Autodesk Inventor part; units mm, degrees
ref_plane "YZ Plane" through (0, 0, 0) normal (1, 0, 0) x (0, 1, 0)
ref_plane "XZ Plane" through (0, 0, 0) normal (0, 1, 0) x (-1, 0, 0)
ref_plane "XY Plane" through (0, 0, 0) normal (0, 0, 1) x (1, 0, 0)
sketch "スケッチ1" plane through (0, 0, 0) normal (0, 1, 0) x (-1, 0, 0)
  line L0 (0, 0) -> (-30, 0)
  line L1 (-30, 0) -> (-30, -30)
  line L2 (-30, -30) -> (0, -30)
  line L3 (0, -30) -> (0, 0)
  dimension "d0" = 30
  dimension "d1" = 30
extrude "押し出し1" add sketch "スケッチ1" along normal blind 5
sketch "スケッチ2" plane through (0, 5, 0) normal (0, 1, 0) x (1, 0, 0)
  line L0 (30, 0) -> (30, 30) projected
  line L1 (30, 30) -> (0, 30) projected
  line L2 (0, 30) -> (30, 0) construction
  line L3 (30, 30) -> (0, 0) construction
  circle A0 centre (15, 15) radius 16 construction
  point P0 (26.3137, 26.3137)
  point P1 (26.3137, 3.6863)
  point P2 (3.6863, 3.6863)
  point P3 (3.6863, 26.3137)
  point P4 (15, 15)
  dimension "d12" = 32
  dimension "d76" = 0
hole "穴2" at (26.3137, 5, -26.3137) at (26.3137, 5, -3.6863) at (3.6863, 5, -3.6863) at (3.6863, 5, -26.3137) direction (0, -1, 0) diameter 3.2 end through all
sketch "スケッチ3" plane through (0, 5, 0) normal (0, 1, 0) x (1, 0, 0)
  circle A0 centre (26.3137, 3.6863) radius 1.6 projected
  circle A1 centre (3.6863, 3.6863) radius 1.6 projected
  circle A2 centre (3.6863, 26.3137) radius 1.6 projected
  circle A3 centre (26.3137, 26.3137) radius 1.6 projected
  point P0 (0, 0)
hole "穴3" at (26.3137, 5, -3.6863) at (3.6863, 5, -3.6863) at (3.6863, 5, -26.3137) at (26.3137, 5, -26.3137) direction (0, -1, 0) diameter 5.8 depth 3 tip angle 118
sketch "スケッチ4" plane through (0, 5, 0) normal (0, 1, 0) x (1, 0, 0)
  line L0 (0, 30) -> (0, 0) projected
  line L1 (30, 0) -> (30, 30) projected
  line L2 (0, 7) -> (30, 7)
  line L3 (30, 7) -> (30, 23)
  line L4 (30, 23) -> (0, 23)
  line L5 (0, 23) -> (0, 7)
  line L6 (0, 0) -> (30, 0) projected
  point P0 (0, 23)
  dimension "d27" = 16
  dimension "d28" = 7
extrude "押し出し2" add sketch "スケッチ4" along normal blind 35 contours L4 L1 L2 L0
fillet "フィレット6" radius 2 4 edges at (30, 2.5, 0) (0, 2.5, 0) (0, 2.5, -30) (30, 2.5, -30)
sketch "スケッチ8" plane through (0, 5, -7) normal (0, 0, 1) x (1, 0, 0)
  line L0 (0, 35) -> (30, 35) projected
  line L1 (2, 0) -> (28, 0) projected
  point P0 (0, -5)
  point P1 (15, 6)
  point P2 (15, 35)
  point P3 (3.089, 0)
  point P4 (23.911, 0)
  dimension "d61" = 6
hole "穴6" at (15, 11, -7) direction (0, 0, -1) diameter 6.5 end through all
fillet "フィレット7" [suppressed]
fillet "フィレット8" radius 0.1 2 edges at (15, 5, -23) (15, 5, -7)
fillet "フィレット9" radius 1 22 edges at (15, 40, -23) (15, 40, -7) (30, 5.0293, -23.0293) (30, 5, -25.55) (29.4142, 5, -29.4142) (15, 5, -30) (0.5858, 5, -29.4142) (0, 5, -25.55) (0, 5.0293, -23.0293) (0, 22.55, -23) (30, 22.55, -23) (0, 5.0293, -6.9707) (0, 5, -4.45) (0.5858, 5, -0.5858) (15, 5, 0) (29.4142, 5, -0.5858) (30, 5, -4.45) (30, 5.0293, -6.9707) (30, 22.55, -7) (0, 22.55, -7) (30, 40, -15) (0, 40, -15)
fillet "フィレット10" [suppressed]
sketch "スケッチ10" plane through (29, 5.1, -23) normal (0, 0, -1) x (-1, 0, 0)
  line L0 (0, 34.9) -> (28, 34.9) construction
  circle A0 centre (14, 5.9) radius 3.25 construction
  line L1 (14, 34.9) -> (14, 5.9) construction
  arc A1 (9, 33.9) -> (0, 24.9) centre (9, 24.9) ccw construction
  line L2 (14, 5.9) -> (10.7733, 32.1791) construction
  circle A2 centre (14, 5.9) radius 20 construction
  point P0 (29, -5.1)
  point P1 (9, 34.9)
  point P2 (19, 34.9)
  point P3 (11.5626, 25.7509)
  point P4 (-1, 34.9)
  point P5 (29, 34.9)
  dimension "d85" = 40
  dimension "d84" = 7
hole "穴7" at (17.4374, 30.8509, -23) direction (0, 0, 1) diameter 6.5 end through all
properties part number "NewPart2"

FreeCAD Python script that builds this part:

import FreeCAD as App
import Part
import Sketcher


def edges_at(feature, points):
    """Names of the edges that pass closest to the given points."""
    edges = feature.Shape.Edges
    near = lambda p: min(range(len(edges)), key=lambda i: edges[i].distToShape(Part.Vertex(*p))[0])
    return sorted({f"Edge{near(p) + 1}" for p in points})


def add_polygon(sketch, points):
    """Adds a closed chain of lines whose ends are joined by coincident constraints."""
    first, n = sketch.GeometryCount, len(points)
    for a, b in zip(points, points[1:] + points[:1]):
        sketch.addGeometry(Part.LineSegment(App.Vector(*a, 0), App.Vector(*b, 0)), False)
    for i in range(n):
        sketch.addConstraint(Sketcher.Constraint("Coincident", first + i, 2, first + (i + 1) % n, 1))

doc = App.newDocument("Part")
body = doc.addObject("PartDesign::Body", "Body")

sketch1 = body.newObject("Sketcher::SketchObject", "Sketch")
sketch1.AttachmentSupport = (doc.getObject("XZ_Plane"), [""])
sketch1.MapMode = "FlatFace"
add_polygon(sketch1, [(0, -30), (0, 0), (30, 0), (30, -30)])
sketch1.addConstraint([
    Sketcher.Constraint("Vertical", 0),
    Sketcher.Constraint("Horizontal", 1),
    Sketcher.Constraint("Vertical", 2),
    Sketcher.Constraint("Horizontal", 3),
    Sketcher.Constraint("Coincident", 0, 2, -1, 1),
    Sketcher.Constraint("Equal", 3, 0),
    Sketcher.Constraint("DistanceX", 1, 1, 1, 2, 30.0),
])
pad1 = body.newObject("PartDesign::Pad", "Pad")
pad1.Profile = sketch1
pad1.Length = 5
pad1.Reversed = True

sketch2 = body.newObject("Sketcher::SketchObject", "Sketch001")
sketch2.AttachmentSupport = (doc.getObject("XZ_Plane"), [""])
sketch2.MapMode = "FlatFace"
sketch2.AttachmentOffset = App.Placement(App.Vector(0, 0, -5), App.Rotation())
sketch2.addGeometry([
    Part.Circle(App.Vector(26.3, -26.3, 0), App.Vector(0, 0, 1), 1.6),
    Part.Circle(App.Vector(26.3, -3.7, 0), App.Vector(0, 0, 1), 1.6),
    Part.Circle(App.Vector(3.7, -3.7, 0), App.Vector(0, 0, 1), 1.6),
    Part.Circle(App.Vector(3.7, -26.3, 0), App.Vector(0, 0, 1), 1.6),
], False)
sketch2.addConstraint([
    Sketcher.Constraint("Equal", 0, 1),
    Sketcher.Constraint("Equal", 1, 2),
    Sketcher.Constraint("Equal", 2, 3),
    Sketcher.Constraint("Horizontal", 1, 3, 2, 3),
    Sketcher.Constraint("Horizontal", 0, 3, 3, 3),
    Sketcher.Constraint("Vertical", 0, 3, 1, 3),
    Sketcher.Constraint("Vertical", 2, 3, 3, 3),
    Sketcher.Constraint("Diameter", 0, 3.2),
    Sketcher.Constraint("DistanceX", -1, 1, 0, 3, 26.3137),
    Sketcher.Constraint("DistanceY", 0, 3, -1, 1, 26.3137),
    Sketcher.Constraint("DistanceY", 1, 3, -1, 1, 3.6863),
    Sketcher.Constraint("DistanceX", -1, 1, 2, 3, 3.6863),
])
doc.recompute()
hole = body.newObject("PartDesign::Hole", "Hole")
hole.Profile = sketch2
hole.ThreadType = "None"
hole.Diameter = 3.2
hole.DepthType = "ThroughAll"
hole.Reversed = True

sketch3 = body.newObject("Sketcher::SketchObject", "Sketch002")
sketch3.AttachmentSupport = (doc.getObject("XZ_Plane"), [""])
sketch3.MapMode = "FlatFace"
sketch3.AttachmentOffset = App.Placement(App.Vector(0, 0, -5), App.Rotation())
sketch3.addGeometry([
    Part.Circle(App.Vector(26.3, -3.7, 0), App.Vector(0, 0, 1), 2.9),
    Part.Circle(App.Vector(3.7, -3.7, 0), App.Vector(0, 0, 1), 2.9),
    Part.Circle(App.Vector(3.7, -26.3, 0), App.Vector(0, 0, 1), 2.9),
    Part.Circle(App.Vector(26.3, -26.3, 0), App.Vector(0, 0, 1), 2.9),
], False)
sketch3.addConstraint([
    Sketcher.Constraint("Equal", 0, 1),
    Sketcher.Constraint("Equal", 1, 2),
    Sketcher.Constraint("Equal", 2, 3),
    Sketcher.Constraint("Horizontal", 0, 3, 1, 3),
    Sketcher.Constraint("Horizontal", 2, 3, 3, 3),
    Sketcher.Constraint("Vertical", 1, 3, 2, 3),
    Sketcher.Constraint("Vertical", 0, 3, 3, 3),
    Sketcher.Constraint("Diameter", 0, 5.8),
    Sketcher.Constraint("DistanceX", -1, 1, 0, 3, 26.3137),
    Sketcher.Constraint("DistanceY", 0, 3, -1, 1, 3.6863),
    Sketcher.Constraint("DistanceX", -1, 1, 1, 3, 3.6863),
    Sketcher.Constraint("DistanceY", 2, 3, -1, 1, 26.3137),
])
doc.recompute()
hole2 = body.newObject("PartDesign::Hole", "Hole001")
hole2.Profile = sketch3
hole2.ThreadType = "None"
hole2.Diameter = 5.8
hole2.DepthType = "Dimension"
hole2.Depth = 3
hole2.DrillPoint = "Angled"
hole2.DrillPointAngle = 118
hole2.Reversed = True

sketch4 = body.newObject("Sketcher::SketchObject", "Sketch003")
sketch4.AttachmentSupport = (doc.getObject("XZ_Plane"), [""])
sketch4.MapMode = "FlatFace"
sketch4.AttachmentOffset = App.Placement(App.Vector(0, 0, -5), App.Rotation())
add_polygon(sketch4, [(30, -23), (0, -23), (0, -7), (30, -7)])
sketch4.addConstraint([
    Sketcher.Constraint("Horizontal", 0),
    Sketcher.Constraint("Vertical", 1),
    Sketcher.Constraint("Horizontal", 2),
    Sketcher.Constraint("Vertical", 3),
    Sketcher.Constraint("PointOnObject", 0, 2, -2),
    Sketcher.Constraint("DistanceY", 1, 1, 1, 2, 16.0),
    Sketcher.Constraint("DistanceY", 1, 2, -1, 1, 7.0),
    Sketcher.Constraint("DistanceX", 0, 2, 0, 1, 30.0),
])
pad2 = body.newObject("PartDesign::Pad", "Pad001")
pad2.Profile = sketch4
pad2.Length = 35
pad2.Reversed = True
doc.recompute()

fillet = body.newObject("PartDesign::Fillet", "Fillet")
fillet.Base = (pad2, edges_at(pad2, [
    (30, 2.5, 0),
    (0, 2.5, 0),
    (0, 2.5, -30),
    (30, 2.5, -30),
]))
fillet.Radius = 2

sketch5 = body.newObject("Sketcher::SketchObject", "Sketch004")
sketch5.AttachmentSupport = (doc.getObject("XY_Plane"), [""])
sketch5.MapMode = "FlatFace"
sketch5.AttachmentOffset = App.Placement(App.Vector(0, 0, -7), App.Rotation())
sketch5.addGeometry(Part.Circle(App.Vector(15, 11, 0), App.Vector(0, 0, 1), 3.2), False)
sketch5.addConstraint([
    Sketcher.Constraint("Diameter", 0, 6.5),
    Sketcher.Constraint("DistanceX", -1, 1, 0, 3, 15.0),
    Sketcher.Constraint("DistanceY", -1, 1, 0, 3, 11.0),
])
doc.recompute()
hole3 = body.newObject("PartDesign::Hole", "Hole002")
hole3.Profile = sketch5
hole3.ThreadType = "None"
hole3.Diameter = 6.5
hole3.DepthType = "ThroughAll"
doc.recompute()

fillet2 = body.newObject("PartDesign::Fillet", "Fillet001")
fillet2.Base = (hole3, edges_at(hole3, [(15, 5, -23), (15, 5, -7)]))
fillet2.Radius = 0.1
doc.recompute()

fillet3 = body.newObject("PartDesign::Fillet", "Fillet002")
fillet3.Base = (fillet2, edges_at(fillet2, [
    (15, 40, -23),
    (15, 40, -7),
    (30, 5.029, -23.029),
    (30, 5, -25.55),
    (29.414, 5, -29.414),
    (15, 5, -30),
    (0.586, 5, -29.414),
    (0, 5, -25.55),
    (0, 5.029, -23.029),
    (0, 22.55, -23),
    (30, 22.55, -23),
    (0, 5.029, -6.971),
    (0, 5, -4.45),
    (0.586, 5, -0.586),
    (15, 5, 0),
    (29.414, 5, -0.586),
    (30, 5, -4.45),
    (30, 5.029, -6.971),
    (30, 22.55, -7),
    (0, 22.55, -7),
    (30, 40, -15),
    (0, 40, -15),
]))
fillet3.Radius = 1

sketch6 = body.newObject("Sketcher::SketchObject", "Sketch005")
sketch6.AttachmentSupport = (doc.getObject("XY_Plane"), [""])
sketch6.MapMode = "FlatFace"
sketch6.AttachmentOffset = App.Placement(App.Vector(0, 0, -23), App.Rotation())
sketch6.addGeometry(Part.Circle(App.Vector(17.4, 30.9, 0), App.Vector(0, 0, 1), 3.2), False)
sketch6.addConstraint([
    Sketcher.Constraint("Diameter", 0, 6.5),
    Sketcher.Constraint("DistanceY", -1, 1, 0, 3, 30.851),
    Sketcher.Constraint("DistanceX", -1, 1, 0, 3, 17.4374),
])
doc.recompute()
hole4 = body.newObject("PartDesign::Hole", "Hole003")
hole4.Profile = sketch6
hole4.ThreadType = "None"
hole4.Diameter = 6.5
hole4.DepthType = "ThroughAll"
hole4.Reversed = True

doc.recompute()
